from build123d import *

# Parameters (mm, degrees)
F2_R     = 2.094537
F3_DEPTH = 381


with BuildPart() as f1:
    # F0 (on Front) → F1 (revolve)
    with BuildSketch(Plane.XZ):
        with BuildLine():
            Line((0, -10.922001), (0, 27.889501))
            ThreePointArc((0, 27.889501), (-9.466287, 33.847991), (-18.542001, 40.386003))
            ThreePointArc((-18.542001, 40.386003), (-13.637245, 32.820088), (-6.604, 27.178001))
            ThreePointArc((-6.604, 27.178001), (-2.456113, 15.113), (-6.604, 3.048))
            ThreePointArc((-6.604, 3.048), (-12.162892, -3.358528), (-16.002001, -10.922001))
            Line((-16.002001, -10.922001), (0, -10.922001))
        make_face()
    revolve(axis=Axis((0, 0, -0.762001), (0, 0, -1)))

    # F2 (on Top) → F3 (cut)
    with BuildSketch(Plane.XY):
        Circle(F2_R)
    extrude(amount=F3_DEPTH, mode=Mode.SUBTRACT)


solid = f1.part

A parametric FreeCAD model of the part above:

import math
import FreeCAD as App
import Part
import Sketcher
Q = App.Units.Quantity

doc = App.newDocument("Part")
body = doc.addObject("PartDesign::Body", "Body")

sketch1 = body.newObject("Sketcher::SketchObject", "Sketch")
sketch1.AttachmentSupport = (doc.getObject("XZ_Plane"), [""])
sketch1.MapMode = "FlatFace"
sketch1.addGeometry(Part.LineSegment(App.Vector(0, -11, 0), App.Vector(0, 28, 0)), False)
sketch1.addGeometry(Part.ArcOfCircle(Part.Circle(App.Vector(91, 182, 0), App.Vector(0, 0, 1), 179), math.radians(-127.56), math.radians(-120.4)), False)
sketch1.addGeometry(Part.ArcOfCircle(Part.Circle(App.Vector(7, 52, 0), App.Vector(0, 0, 1), 28), math.radians(-156), math.radians(-120)), False)
sketch1.addGeometry(Part.ArcOfCircle(Part.Circle(App.Vector(-22, 15, 0), App.Vector(0, 0, 1), 20), math.radians(-38), math.radians(38)), False)
sketch1.addGeometry(Part.ArcOfCircle(Part.Circle(App.Vector(17, -23, 0), App.Vector(0, 0, 1), 35), math.radians(132), math.radians(160)), False)
sketch1.addGeometry(Part.LineSegment(App.Vector(-16, -11, 0), App.Vector(0, -11, 0)), False)
sketch1.addConstraint(Sketcher.Constraint("Coincident", 0, 2, 1, 2))
sketch1.addConstraint(Sketcher.Constraint("Coincident", 1, 1, 2, 1))
sketch1.addConstraint(Sketcher.Constraint("Coincident", 2, 2, 3, 2))
sketch1.addConstraint(Sketcher.Constraint("Coincident", 3, 1, 4, 1))
sketch1.addConstraint(Sketcher.Constraint("Coincident", 4, 2, 5, 1))
sketch1.addConstraint(Sketcher.Constraint("Coincident", 5, 2, 0, 1))
sketch1.addConstraint(Sketcher.Constraint("Vertical", 0))
sketch1.addConstraint(Sketcher.Constraint("Horizontal", 5))
sketch1.addConstraint(Sketcher.Constraint("PointOnObject", 0, 2, -2))
sketch1.addConstraint(Sketcher.Constraint("Vertical", 2, 2, 3, 1))
sketch1.addConstraint(Sketcher.Constraint("DistanceX", 5, 1, 5, 2, Q("0.63 in")))
sketch1.addConstraint(Sketcher.Constraint("DistanceY", 4, 2, 2, 2, Q("1.5000001 in")))
sketch1.addConstraint(Sketcher.Constraint("DistanceX", 1, 1, -1, 1, Q("0.73 in")))
sketch1.addConstraint(Sketcher.Constraint("DistanceY", -1, 1, 1, 1, Q("1.5900001 in")))
sketch1.addConstraint(Sketcher.Constraint("DistanceX", 2, 2, -1, 1, Q("0.26 in")))
sketch1.addConstraint(Sketcher.Constraint("DistanceY", -1, 1, 2, 2, Q("1.07 in")))
sketch1.addConstraint(Sketcher.Constraint("DistanceY", -1, 1, 3, 1, Q("0.12 in")))
sketch1.addConstraint(Sketcher.Constraint("Radius", 2, 28.336572))
sketch1.addConstraint(Sketcher.Constraint("DistanceY", 0, 1, 0, 2, 38.811502))
sketch1.addConstraint(Sketcher.Constraint("Radius", 1, 179.028364))
sketch1.addConstraint(Sketcher.Constraint("Radius", 3, 19.620737))
sketch1.addConstraint(Sketcher.Constraint("Radius", 4, 34.710343))
revolution = body.newObject("PartDesign::Revolution", "Revolution")
revolution.Profile = sketch1
revolution.ReferenceAxis = (sketch1, ["V_Axis"])
revolution.Angle = 360

sketch2 = body.newObject("Sketcher::SketchObject", "Sketch001")
sketch2.AttachmentSupport = (doc.getObject("XY_Plane"), [""])
sketch2.MapMode = "FlatFace"
sketch2.addGeometry(Part.Circle(App.Vector(0, 0, 0), App.Vector(0, 0, 1), 2.1), False)
sketch2.addConstraint(Sketcher.Constraint("Coincident", 0, 3, -1, 1))
sketch2.addConstraint(Sketcher.Constraint("Diameter", 0, 4.189074))
pocket1 = body.newObject("PartDesign::Pocket", "Pocket")
pocket1.Profile = sketch2
pocket1.Length = Q("15 in")
pocket1.Reversed = True

doc.recompute()
